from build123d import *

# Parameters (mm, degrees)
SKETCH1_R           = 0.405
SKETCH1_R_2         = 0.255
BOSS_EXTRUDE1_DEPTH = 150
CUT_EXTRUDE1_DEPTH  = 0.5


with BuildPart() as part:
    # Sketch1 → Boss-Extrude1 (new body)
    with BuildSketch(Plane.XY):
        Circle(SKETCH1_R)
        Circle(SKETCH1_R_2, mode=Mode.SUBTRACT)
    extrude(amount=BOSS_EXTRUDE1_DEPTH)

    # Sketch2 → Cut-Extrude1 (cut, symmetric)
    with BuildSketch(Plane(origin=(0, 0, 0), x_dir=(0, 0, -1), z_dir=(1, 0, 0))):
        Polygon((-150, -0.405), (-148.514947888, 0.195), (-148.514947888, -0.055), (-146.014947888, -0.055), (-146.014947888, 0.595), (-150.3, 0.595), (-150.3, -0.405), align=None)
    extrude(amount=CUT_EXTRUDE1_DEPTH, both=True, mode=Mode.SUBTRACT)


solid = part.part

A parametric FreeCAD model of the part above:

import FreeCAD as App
import Part
import Sketcher
Q = App.Units.Quantity


def add_polygon(sketch, points):
    """Adds a closed chain of lines whose ends are joined by coincident constraints."""
    first, n = sketch.GeometryCount, len(points)
    for a, b in zip(points, points[1:] + points[:1]):
        sketch.addGeometry(Part.LineSegment(App.Vector(*a, 0), App.Vector(*b, 0)), False)
    for i in range(n):
        sketch.addConstraint(Sketcher.Constraint("Coincident", first + i, 2, first + (i + 1) % n, 1))

doc = App.newDocument("Part")
body = doc.addObject("PartDesign::Body", "Body")

sketch1 = body.newObject("Sketcher::SketchObject", "Sketch")
sketch1.AttachmentSupport = (doc.getObject("XY_Plane"), [""])
sketch1.MapMode = "FlatFace"
sketch1.addGeometry([
    Part.Circle(App.Vector(0, 0, 0), App.Vector(0, 0, 1), 0.405),
    Part.Circle(App.Vector(0, 0, 0), App.Vector(0, 0, 1), 0.255),
], False)
sketch1.addConstraint([
    Sketcher.Constraint("Coincident", 0, 3, -1, 1),
    Sketcher.Constraint("Coincident", 1, 3, -1, 1),
    Sketcher.Constraint("Diameter", 0, 0.81),
    Sketcher.Constraint("Diameter", 1, 0.51),
])
pad1 = body.newObject("PartDesign::Pad", "Pad")
pad1.Profile = sketch1
pad1.Length = 150

sketch2 = body.newObject("Sketcher::SketchObject", "Sketch001")
sketch2.AttachmentSupport = (doc.getObject("YZ_Plane"), [""])
sketch2.MapMode = "FlatFace"
add_polygon(sketch2, [(-0.405, 150), (0.195, 148.514948), (-0.055, 148.514948), (-0.055, 146.014948), (0.595, 146.014948), (0.595, 150.3), (-0.405, 150.3)])
sketch2.addConstraint([
    Sketcher.Constraint("Horizontal", 1),
    Sketcher.Constraint("Vertical", 2),
    Sketcher.Constraint("Horizontal", 3),
    Sketcher.Constraint("Vertical", 4),
    Sketcher.Constraint("Horizontal", 5),
    Sketcher.Constraint("Vertical", 6),
    Sketcher.Constraint("DistanceX", 5, 2, 5, 1, 1.0),
    Sketcher.Constraint("Angle", 0, Q("-68 deg")),
    Sketcher.Constraint("DistanceY", 2, 2, 2, 1, 2.5),
    Sketcher.Constraint("DistanceY", 6, 2, 6, 1, 0.3),
    Sketcher.Constraint("DistanceY", -1, 1, 6, 2, 150.0),
    Sketcher.Constraint("DistanceX", 1, 2, 1, 1, 0.25),
    Sketcher.Constraint("DistanceX", 3, 1, 3, 2, 0.65),
    Sketcher.Constraint("DistanceX", -1, 1, 0, 2, 0.195),
])
pocket1 = body.newObject("PartDesign::Pocket", "Pocket")
pocket1.Profile = sketch2
pocket1.Length = 1
pocket1.Midplane = True

doc.recompute()
